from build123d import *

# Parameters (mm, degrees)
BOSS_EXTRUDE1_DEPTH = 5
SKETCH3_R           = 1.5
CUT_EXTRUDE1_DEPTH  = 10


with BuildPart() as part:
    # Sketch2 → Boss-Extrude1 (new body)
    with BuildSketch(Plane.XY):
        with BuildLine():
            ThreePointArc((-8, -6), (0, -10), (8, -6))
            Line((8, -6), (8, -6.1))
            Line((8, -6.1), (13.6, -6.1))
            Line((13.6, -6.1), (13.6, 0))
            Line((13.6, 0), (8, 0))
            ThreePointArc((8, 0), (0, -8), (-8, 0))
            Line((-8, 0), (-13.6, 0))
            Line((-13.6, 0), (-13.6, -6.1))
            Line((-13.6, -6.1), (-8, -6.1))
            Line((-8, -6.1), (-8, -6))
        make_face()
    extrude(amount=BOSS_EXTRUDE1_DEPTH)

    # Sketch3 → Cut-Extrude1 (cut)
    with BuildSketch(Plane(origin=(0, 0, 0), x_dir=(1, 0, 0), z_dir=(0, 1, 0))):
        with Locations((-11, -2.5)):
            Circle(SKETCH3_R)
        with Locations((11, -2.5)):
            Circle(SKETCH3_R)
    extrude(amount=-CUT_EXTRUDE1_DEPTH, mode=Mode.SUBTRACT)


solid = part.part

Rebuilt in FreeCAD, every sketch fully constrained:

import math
import FreeCAD as App
import Part
import Sketcher
from FreeCAD import Vector

doc = App.newDocument("Part")
body = doc.addObject("PartDesign::Body", "Body")

# Sketch on XY plane
sketch1 = body.newObject("Sketcher::SketchObject", "Sketch")
sketch1.AttachmentSupport = (doc.getObject("XY_Plane"), [""])
sketch1.MapMode = "FlatFace"
sketch1.addGeometry([
    Part.ArcOfCircle(Part.Circle(Vector(0, 0, 0), Vector(0, 0, 1), 10), math.radians(-143), math.radians(-37)),  # 0
    Part.LineSegment(Vector(8, -6, 0), Vector(8, -6.1, 0)),  # 1
    Part.LineSegment(Vector(8, -6.1, 0), Vector(13.6, -6.1, 0)),  # 2
    Part.LineSegment(Vector(13.6, -6.1, 0), Vector(13.6, 0, 0)),  # 3
    Part.LineSegment(Vector(13.6, 0, 0), Vector(8, 0, 0)),  # 4
    Part.ArcOfCircle(Part.Circle(Vector(0, 0, 0), Vector(0, 0, 1), 8), math.radians(180), math.radians(360)),  # 5
    Part.LineSegment(Vector(-8, 0, 0), Vector(-13.6, 0, 0)),  # 6
    Part.LineSegment(Vector(-13.6, 0, 0), Vector(-13.6, -6.1, 0)),  # 7
    Part.LineSegment(Vector(-13.6, -6.1, 0), Vector(-8, -6.1, 0)),  # 8
    Part.LineSegment(Vector(-8, -6.1, 0), Vector(-8, -6, 0)),  # 9
], False)
sketch1.addConstraint([
    Sketcher.Constraint("Coincident", 0, 2, 1, 1),
    Sketcher.Constraint("Coincident", 1, 2, 2, 1),
    Sketcher.Constraint("Coincident", 2, 2, 3, 1),
    Sketcher.Constraint("Coincident", 3, 2, 4, 1),
    Sketcher.Constraint("Coincident", 4, 2, 5, 2),
    Sketcher.Constraint("Coincident", 5, 1, 6, 1),
    Sketcher.Constraint("Coincident", 6, 2, 7, 1),
    Sketcher.Constraint("Coincident", 7, 2, 8, 1),
    Sketcher.Constraint("Coincident", 8, 2, 9, 1),
    Sketcher.Constraint("Coincident", 9, 2, 0, 1),
    Sketcher.Constraint("Vertical", 1),
    Sketcher.Constraint("Horizontal", 2),
    Sketcher.Constraint("Vertical", 3),
    Sketcher.Constraint("Horizontal", 4),
    Sketcher.Constraint("Horizontal", 6),
    Sketcher.Constraint("Vertical", 7),
    Sketcher.Constraint("Horizontal", 8),
    Sketcher.Constraint("Vertical", 9),
    Sketcher.Constraint("Coincident", 0, 3, -1, 1),
    Sketcher.Constraint("Coincident", 5, 3, -1, 1),
    Sketcher.Constraint("Symmetric", 3, 2, 6, 2, -1, 1),
    Sketcher.Constraint("Symmetric", 1, 2, 8, 2, -2),
    Sketcher.Constraint("PointOnObject", 3, 2, -1),
    Sketcher.Constraint("Vertical", 1, 2, 4, 2),
    Sketcher.Constraint("Radius", 0, 10.0),
    Sketcher.Constraint("Radius", 5, 8.0),
    Sketcher.Constraint("DistanceX", 2, 1, 2, 2, 5.6),
    Sketcher.Constraint("DistanceY", 1, 2, 1, 1, 0.1),
])
pad1 = body.newObject("PartDesign::Pad", "Pad")
pad1.Profile = sketch1
pad1.Length = 5

# Sketch on XZ plane
sketch2 = body.newObject("Sketcher::SketchObject", "Sketch001")
sketch2.AttachmentSupport = (doc.getObject("XZ_Plane"), [""])
sketch2.MapMode = "FlatFace"
sketch2.addGeometry([
    Part.Circle(Vector(-11, 2.5, 0), Vector(0, 0, 1), 1.5),
    Part.Circle(Vector(11, 2.5, 0), Vector(0, 0, 1), 1.5),
], False)
sketch2.addConstraint([
    Sketcher.Constraint("Equal", 0, 1),
    Sketcher.Constraint("Symmetric", 0, 3, 1, 3, -2),
    Sketcher.Constraint("Diameter", 0, 3.0),
    Sketcher.Constraint("DistanceX", 0, 3, -1, 1, 11.0),
    Sketcher.Constraint("DistanceY", -1, 1, 0, 3, 2.5),
])
pocket1 = body.newObject("PartDesign::Pocket", "Pocket")
pocket1.Profile = sketch2
pocket1.Length = 10
pocket1.Reversed = True

doc.recompute()
